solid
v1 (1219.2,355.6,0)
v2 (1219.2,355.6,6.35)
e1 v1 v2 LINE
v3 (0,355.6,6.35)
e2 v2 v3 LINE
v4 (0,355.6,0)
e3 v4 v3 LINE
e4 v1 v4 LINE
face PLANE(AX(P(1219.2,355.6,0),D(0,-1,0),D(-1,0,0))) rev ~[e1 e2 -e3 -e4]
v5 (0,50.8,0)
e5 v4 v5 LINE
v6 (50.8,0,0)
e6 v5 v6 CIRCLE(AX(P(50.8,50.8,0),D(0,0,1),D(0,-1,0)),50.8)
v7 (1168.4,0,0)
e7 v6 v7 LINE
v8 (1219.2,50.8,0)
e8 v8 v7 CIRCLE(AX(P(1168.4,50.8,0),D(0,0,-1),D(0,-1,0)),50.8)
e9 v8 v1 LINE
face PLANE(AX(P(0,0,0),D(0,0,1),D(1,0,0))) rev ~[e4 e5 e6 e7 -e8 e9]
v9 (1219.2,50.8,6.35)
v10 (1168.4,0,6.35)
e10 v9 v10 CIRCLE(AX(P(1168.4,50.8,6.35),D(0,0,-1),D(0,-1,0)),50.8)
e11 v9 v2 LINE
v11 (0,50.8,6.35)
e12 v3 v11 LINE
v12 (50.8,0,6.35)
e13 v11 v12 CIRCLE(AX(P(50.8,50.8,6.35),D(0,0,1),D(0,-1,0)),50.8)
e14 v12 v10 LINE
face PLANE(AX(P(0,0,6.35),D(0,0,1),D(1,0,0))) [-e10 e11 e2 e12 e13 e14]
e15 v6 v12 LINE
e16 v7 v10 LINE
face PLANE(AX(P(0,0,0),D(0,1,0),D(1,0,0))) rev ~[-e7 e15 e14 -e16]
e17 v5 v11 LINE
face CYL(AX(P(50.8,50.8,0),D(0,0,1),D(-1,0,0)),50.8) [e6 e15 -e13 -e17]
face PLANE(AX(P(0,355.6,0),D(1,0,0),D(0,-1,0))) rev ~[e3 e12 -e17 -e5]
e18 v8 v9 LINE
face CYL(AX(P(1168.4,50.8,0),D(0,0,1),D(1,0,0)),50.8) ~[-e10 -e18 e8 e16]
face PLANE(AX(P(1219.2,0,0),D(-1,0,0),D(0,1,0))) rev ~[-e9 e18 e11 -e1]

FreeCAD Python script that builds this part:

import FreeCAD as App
import Part
import Sketcher
Q = App.Units.Quantity


def edges_at(feature, points):
    """Names of the edges that pass closest to the given points."""
    edges = feature.Shape.Edges
    near = lambda p: min(range(len(edges)), key=lambda i: edges[i].distToShape(Part.Vertex(*p))[0])
    return sorted({f"Edge{near(p) + 1}" for p in points})

doc = App.newDocument("Part")
params = doc.addObject("Spreadsheet::Sheet", "Params")
for row, (alias, value) in enumerate([
    ("sketch1_width", "48 in"),
    ("sketch1_height", "14 in"),
    ("pad1_length", "0.25 in"),
    ("fillet_radius", "2 in"),
], start=1):
    params.set(f"A{row}", alias)
    params.set(f"B{row}", "=" + value)
    params.setAlias(f"B{row}", alias)

body = doc.addObject("PartDesign::Body", "Body")

sketch1 = body.newObject("Sketcher::SketchObject", "Sketch")
sketch1.AttachmentSupport = (doc.getObject("XY_Plane"), [""])
sketch1.MapMode = "FlatFace"
sketch1.addGeometry([
    Part.LineSegment(App.Vector(0, 356, 0), App.Vector(0, 0, 0)),
    Part.LineSegment(App.Vector(0, 0, 0), App.Vector(1219, 0, 0)),
    Part.LineSegment(App.Vector(1219, 0, 0), App.Vector(1219, 356, 0)),
    Part.LineSegment(App.Vector(1219, 356, 0), App.Vector(0, 356, 0)),
], False)
sketch1.addConstraint([
    Sketcher.Constraint("Coincident", 0, 2, 1, 1),
    Sketcher.Constraint("Coincident", 1, 2, 2, 1),
    Sketcher.Constraint("Coincident", 2, 2, 3, 1),
    Sketcher.Constraint("Coincident", 3, 2, 0, 1),
    Sketcher.Constraint("Vertical", 0),
    Sketcher.Constraint("Horizontal", 1),
    Sketcher.Constraint("Vertical", 2),
    Sketcher.Constraint("Horizontal", 3),
    Sketcher.Constraint("Coincident", 0, 2, -1, 1),
    Sketcher.Constraint("DistanceX", 1, 1, 1, 2, Q("48 in")),
    Sketcher.Constraint("DistanceY", 0, 2, 0, 1, Q("14 in")),
])
sketch1.setExpression("Constraints[9]", "Params.sketch1_width")
sketch1.setExpression("Constraints[10]", "Params.sketch1_height")
pad1 = body.newObject("PartDesign::Pad", "Pad")
pad1.Profile = sketch1
pad1.setExpression("Length", "Params.pad1_length")
doc.recompute()

fillet = body.newObject("PartDesign::Fillet", "Fillet")
fillet.Base = (pad1, edges_at(pad1, [(0, 0, 3.175), (1219.2, 0, 3.175)]))
fillet.setExpression("Radius", "Params.fillet_radius")

doc.recompute()
